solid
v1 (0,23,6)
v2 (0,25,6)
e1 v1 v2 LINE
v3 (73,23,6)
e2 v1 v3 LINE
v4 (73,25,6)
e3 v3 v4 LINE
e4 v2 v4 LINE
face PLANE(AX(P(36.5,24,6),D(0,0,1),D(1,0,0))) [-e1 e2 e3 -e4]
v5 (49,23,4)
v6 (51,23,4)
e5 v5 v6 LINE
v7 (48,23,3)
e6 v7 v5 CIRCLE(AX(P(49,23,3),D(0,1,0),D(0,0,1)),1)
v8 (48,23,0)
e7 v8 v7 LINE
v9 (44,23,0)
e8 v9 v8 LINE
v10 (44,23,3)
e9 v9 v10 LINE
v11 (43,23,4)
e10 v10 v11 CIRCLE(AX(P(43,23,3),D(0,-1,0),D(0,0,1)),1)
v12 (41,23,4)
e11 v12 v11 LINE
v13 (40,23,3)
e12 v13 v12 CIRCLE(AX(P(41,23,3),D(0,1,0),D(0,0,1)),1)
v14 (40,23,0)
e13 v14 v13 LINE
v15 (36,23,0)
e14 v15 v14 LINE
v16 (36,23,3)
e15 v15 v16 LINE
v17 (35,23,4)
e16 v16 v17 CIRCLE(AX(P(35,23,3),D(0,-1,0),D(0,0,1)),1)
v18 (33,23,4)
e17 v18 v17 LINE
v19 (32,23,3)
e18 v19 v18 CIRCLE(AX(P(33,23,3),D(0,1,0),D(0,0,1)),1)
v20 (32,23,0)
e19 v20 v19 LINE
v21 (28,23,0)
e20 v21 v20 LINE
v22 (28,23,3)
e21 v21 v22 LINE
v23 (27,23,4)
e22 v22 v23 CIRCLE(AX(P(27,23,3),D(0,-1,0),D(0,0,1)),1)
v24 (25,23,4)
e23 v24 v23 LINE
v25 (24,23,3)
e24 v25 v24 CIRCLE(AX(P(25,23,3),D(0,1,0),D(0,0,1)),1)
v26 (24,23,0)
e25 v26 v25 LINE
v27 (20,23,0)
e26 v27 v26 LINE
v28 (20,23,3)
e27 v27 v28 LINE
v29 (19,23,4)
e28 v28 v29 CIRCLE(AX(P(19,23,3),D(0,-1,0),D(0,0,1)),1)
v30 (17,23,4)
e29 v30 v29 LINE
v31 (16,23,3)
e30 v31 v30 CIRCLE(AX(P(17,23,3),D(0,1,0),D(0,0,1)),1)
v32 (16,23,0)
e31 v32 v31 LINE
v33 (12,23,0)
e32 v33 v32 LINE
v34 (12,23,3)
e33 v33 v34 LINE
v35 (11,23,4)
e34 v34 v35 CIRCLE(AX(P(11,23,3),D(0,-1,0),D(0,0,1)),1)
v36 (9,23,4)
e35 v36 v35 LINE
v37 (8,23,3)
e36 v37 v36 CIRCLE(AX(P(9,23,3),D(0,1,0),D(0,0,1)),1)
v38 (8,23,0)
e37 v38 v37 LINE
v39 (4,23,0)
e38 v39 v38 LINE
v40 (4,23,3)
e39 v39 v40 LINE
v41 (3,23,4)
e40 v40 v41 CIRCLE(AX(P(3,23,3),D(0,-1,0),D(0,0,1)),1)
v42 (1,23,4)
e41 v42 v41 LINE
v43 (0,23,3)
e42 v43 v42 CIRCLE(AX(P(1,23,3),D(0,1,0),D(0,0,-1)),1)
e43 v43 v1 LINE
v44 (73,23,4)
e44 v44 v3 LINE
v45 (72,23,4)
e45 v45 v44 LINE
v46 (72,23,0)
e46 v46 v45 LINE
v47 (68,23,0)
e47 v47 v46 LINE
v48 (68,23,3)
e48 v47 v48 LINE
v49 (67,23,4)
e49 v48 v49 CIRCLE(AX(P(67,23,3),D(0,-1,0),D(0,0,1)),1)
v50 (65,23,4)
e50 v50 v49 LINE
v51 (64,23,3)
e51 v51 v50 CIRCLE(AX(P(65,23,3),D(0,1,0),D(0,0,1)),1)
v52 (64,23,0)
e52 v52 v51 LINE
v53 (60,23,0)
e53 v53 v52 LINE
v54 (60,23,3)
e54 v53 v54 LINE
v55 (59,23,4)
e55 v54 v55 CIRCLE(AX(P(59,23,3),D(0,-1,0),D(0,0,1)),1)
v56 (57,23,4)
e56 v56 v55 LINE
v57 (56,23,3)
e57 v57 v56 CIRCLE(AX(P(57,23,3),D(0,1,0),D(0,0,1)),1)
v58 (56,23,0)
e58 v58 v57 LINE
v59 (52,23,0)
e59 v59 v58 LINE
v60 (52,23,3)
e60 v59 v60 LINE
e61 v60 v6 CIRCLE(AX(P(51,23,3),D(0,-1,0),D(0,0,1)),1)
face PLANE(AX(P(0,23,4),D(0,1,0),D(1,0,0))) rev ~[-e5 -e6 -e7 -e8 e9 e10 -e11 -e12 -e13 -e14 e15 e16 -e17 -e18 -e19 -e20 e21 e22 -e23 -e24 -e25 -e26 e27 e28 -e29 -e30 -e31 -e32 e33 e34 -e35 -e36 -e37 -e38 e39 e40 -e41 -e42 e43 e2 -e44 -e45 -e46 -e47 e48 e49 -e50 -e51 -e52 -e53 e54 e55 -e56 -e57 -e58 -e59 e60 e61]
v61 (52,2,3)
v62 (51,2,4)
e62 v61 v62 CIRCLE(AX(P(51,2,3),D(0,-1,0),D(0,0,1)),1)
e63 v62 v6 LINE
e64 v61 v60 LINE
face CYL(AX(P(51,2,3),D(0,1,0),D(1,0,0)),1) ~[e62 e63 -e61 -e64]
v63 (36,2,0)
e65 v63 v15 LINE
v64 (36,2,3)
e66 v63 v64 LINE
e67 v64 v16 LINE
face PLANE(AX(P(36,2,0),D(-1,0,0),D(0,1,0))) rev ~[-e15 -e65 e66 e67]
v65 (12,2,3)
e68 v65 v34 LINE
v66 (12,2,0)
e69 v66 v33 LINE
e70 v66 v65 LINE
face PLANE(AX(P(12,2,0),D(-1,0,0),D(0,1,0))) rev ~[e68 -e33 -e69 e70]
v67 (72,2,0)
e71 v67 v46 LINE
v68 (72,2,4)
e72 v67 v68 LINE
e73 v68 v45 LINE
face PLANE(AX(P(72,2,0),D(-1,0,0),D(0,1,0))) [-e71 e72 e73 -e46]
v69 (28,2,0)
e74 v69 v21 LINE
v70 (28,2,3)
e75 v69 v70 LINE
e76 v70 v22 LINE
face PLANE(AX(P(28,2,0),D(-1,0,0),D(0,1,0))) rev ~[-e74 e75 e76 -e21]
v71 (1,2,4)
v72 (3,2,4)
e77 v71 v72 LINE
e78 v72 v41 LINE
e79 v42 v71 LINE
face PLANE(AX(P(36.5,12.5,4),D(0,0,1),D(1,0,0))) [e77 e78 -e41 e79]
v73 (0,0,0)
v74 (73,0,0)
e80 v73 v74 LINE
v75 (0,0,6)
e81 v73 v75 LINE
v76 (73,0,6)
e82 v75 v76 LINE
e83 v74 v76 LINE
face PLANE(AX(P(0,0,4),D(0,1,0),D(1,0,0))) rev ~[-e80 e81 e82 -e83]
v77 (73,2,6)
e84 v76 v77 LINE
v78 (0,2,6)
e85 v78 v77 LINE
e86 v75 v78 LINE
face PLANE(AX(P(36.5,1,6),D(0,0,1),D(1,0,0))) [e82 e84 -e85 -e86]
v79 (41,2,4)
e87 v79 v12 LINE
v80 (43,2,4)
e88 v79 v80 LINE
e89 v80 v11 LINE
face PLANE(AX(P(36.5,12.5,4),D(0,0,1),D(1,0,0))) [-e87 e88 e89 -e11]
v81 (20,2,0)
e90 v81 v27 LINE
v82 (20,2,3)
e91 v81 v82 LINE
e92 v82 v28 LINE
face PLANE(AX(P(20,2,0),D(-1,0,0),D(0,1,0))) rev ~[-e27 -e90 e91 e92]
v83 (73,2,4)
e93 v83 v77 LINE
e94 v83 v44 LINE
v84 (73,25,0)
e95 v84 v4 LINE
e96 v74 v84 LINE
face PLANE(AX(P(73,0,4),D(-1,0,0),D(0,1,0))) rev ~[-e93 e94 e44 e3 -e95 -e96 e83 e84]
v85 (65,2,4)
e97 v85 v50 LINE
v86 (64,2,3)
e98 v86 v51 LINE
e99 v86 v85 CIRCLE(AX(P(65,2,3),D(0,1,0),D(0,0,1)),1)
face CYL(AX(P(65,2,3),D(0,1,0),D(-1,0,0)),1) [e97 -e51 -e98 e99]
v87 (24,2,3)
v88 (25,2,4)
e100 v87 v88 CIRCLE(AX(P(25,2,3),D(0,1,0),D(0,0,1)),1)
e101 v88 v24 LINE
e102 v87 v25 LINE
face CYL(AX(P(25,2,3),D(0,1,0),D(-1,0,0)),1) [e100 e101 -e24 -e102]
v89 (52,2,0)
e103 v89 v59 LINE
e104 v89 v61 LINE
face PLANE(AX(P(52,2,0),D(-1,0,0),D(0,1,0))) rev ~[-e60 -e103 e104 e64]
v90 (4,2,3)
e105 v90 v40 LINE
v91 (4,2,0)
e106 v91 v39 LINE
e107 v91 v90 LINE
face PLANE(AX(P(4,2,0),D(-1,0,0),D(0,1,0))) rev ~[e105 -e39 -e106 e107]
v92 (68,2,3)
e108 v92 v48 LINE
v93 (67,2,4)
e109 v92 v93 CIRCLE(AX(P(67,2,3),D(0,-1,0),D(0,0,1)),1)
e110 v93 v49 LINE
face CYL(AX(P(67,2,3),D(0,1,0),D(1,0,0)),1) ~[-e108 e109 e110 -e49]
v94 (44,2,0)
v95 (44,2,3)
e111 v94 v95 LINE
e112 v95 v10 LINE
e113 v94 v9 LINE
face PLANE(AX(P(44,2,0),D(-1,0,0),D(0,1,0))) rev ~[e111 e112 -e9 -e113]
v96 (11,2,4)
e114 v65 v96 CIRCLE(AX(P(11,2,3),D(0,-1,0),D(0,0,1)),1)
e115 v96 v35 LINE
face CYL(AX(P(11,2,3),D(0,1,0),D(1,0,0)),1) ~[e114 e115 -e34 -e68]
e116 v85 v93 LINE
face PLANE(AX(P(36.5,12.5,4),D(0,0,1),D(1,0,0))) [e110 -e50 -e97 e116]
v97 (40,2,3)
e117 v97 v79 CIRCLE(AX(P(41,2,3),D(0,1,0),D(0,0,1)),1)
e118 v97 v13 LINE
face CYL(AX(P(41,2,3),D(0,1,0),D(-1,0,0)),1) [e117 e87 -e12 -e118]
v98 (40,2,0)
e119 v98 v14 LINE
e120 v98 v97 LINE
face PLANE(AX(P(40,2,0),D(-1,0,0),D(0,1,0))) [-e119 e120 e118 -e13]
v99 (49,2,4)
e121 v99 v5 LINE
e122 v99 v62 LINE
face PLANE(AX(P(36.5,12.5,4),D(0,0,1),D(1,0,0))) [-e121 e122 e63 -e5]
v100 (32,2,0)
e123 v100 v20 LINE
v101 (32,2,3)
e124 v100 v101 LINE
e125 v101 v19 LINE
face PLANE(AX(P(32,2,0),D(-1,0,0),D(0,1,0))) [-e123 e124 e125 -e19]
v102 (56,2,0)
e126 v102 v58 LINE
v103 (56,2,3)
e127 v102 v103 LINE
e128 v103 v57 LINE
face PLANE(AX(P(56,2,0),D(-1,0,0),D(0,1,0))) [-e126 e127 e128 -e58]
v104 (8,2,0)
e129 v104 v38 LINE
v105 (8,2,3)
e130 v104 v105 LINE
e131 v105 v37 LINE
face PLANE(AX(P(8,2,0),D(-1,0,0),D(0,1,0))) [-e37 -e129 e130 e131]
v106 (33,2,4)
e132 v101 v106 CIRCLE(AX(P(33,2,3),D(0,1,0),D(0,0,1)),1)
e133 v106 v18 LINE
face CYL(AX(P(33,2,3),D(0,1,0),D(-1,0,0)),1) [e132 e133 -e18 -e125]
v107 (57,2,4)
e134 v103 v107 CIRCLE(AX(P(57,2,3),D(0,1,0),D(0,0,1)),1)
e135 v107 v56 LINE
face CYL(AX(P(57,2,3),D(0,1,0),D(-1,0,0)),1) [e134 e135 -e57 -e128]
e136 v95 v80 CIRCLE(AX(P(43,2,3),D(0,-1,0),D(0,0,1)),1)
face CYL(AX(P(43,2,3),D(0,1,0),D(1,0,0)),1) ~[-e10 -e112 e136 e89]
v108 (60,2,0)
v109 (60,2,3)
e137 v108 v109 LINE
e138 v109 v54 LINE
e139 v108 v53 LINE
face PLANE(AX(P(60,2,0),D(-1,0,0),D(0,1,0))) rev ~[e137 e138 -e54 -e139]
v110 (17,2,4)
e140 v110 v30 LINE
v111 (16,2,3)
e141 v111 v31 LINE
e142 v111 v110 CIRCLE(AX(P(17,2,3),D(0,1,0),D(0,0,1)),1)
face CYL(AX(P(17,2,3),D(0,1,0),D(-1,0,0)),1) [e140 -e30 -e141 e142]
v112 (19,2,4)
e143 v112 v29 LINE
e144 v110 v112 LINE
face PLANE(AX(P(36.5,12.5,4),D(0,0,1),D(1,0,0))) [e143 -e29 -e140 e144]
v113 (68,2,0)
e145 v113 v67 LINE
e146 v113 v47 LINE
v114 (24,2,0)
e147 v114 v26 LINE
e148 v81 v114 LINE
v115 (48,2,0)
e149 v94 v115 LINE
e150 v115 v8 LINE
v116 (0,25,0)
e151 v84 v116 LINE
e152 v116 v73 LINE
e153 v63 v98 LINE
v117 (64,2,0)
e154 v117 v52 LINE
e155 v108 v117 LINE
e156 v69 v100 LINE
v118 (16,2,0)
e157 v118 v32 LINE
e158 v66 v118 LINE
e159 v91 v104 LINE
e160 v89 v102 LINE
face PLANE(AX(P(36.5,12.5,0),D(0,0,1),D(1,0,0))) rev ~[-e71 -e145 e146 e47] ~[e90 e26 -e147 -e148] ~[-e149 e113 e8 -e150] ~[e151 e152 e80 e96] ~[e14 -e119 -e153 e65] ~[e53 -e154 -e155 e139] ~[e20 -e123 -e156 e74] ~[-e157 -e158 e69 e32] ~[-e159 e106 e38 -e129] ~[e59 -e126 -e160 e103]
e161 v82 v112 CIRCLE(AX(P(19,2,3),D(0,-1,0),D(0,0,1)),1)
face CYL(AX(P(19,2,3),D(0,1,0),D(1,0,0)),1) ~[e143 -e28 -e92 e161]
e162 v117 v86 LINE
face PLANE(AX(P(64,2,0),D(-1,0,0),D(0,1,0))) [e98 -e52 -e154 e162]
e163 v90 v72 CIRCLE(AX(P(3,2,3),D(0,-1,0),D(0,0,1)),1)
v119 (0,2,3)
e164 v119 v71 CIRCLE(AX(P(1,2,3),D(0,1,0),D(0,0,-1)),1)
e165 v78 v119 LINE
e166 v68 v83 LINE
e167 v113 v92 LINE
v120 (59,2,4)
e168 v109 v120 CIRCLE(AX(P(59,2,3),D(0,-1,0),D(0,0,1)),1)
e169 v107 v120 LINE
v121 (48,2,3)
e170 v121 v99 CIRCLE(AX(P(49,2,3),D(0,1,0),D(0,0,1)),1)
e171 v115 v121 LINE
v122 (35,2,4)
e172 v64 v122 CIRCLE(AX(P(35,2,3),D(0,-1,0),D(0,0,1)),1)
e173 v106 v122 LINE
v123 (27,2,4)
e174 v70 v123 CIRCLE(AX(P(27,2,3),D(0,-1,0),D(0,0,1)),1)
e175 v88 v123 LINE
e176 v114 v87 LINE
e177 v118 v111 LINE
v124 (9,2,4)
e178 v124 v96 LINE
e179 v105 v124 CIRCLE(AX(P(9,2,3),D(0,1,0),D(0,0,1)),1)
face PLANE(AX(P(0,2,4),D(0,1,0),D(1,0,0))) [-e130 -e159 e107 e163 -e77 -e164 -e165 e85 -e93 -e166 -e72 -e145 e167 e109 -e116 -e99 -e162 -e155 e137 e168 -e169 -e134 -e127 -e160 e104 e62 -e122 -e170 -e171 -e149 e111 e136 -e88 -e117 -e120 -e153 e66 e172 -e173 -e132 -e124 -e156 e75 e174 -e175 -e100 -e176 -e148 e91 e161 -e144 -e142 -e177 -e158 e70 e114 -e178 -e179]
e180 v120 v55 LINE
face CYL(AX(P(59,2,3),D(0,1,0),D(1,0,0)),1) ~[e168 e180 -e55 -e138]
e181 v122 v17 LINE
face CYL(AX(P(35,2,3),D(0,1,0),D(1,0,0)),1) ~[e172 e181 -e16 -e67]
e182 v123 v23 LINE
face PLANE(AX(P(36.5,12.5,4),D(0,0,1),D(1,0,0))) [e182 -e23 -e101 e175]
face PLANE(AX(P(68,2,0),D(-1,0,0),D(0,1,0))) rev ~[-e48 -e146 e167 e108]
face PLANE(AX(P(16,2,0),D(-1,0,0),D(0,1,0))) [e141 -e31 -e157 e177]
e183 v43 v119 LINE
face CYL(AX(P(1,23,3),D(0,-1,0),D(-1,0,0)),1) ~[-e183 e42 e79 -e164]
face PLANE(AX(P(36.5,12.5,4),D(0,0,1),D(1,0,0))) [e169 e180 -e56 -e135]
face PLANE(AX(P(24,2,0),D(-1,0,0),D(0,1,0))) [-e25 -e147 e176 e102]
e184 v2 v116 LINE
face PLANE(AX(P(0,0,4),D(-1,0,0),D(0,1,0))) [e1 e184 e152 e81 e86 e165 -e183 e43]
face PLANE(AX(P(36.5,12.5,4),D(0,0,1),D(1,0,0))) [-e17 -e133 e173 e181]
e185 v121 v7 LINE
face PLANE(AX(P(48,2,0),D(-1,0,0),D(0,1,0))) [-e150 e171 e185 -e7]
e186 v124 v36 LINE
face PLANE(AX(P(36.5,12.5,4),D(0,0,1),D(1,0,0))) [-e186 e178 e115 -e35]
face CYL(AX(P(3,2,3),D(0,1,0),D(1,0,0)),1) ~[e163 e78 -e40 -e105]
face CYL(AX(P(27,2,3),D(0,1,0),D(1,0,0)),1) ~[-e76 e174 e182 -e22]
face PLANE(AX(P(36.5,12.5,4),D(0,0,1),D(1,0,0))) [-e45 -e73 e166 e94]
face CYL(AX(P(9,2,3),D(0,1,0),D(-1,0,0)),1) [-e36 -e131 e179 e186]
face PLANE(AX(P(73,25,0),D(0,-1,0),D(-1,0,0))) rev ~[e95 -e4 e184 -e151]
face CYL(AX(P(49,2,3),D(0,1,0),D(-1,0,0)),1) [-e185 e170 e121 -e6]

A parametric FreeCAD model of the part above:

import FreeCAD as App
import Part
import Sketcher
from FreeCAD import Vector


def edges_at(feature, points):
    """Names of the edges that pass closest to the given points."""
    edges = feature.Shape.Edges
    near = lambda p: min(range(len(edges)), key=lambda i: edges[i].distToShape(Part.Vertex(*p))[0])
    return sorted({f"Edge{near(p) + 1}" for p in points})


def add_polygon(sketch, points):
    """Adds a closed chain of lines whose ends are joined by coincident constraints."""
    first, n = sketch.GeometryCount, len(points)
    for a, b in zip(points, points[1:] + points[:1]):
        sketch.addGeometry(Part.LineSegment(App.Vector(*a, 0), App.Vector(*b, 0)), False)
    for i in range(n):
        sketch.addConstraint(Sketcher.Constraint("Coincident", first + i, 2, first + (i + 1) % n, 1))

doc = App.newDocument("Part")
body = doc.addObject("PartDesign::Body", "Body")

sketch1 = doc.addObject("Sketcher::SketchObject", "Sketch")
body.addObject(sketch1)
sketch1.AttachmentSupport = (doc.XY_Plane, [""])
sketch1.MapMode = "FlatFace"
add_polygon(sketch1, [(0, 25), (0, 0), (73, 0), (73, 25)])
add_polygon(sketch1, [(8, 2), (4, 2), (4, 23), (8, 23)])
add_polygon(sketch1, [(16, 2), (12, 2), (12, 23), (16, 23)])
add_polygon(sketch1, [(24, 2), (20, 2), (20, 23), (24, 23)])
add_polygon(sketch1, [(32, 2), (28, 2), (28, 23), (32, 23)])
add_polygon(sketch1, [(40, 2), (36, 2), (36, 23), (40, 23)])
add_polygon(sketch1, [(48, 2), (44, 2), (44, 23), (48, 23)])
add_polygon(sketch1, [(56, 2), (52, 2), (52, 23), (56, 23)])
add_polygon(sketch1, [(64, 2), (60, 2), (60, 23), (64, 23)])
add_polygon(sketch1, [(72, 2), (68, 2), (68, 23), (72, 23)])
sketch1.addConstraint([
    Sketcher.Constraint("Vertical", 0),
    Sketcher.Constraint("Horizontal", 1),
    Sketcher.Constraint("Vertical", 2),
    Sketcher.Constraint("Horizontal", 3),
    Sketcher.Constraint("Horizontal", 4),
    Sketcher.Constraint("Vertical", 5),
    Sketcher.Constraint("Horizontal", 6),
    Sketcher.Constraint("Vertical", 7),
    Sketcher.Constraint("Horizontal", 8),
    Sketcher.Constraint("Vertical", 9),
    Sketcher.Constraint("Horizontal", 10),
    Sketcher.Constraint("Vertical", 11),
    Sketcher.Constraint("Horizontal", 12),
    Sketcher.Constraint("Vertical", 13),
    Sketcher.Constraint("Horizontal", 14),
    Sketcher.Constraint("Vertical", 15),
    Sketcher.Constraint("Horizontal", 16),
    Sketcher.Constraint("Vertical", 17),
    Sketcher.Constraint("Horizontal", 18),
    Sketcher.Constraint("Vertical", 19),
    Sketcher.Constraint("Horizontal", 20),
    Sketcher.Constraint("Vertical", 21),
    Sketcher.Constraint("Horizontal", 22),
    Sketcher.Constraint("Vertical", 23),
    Sketcher.Constraint("Horizontal", 24),
    Sketcher.Constraint("Vertical", 25),
    Sketcher.Constraint("Horizontal", 26),
    Sketcher.Constraint("Vertical", 27),
    Sketcher.Constraint("Horizontal", 28),
    Sketcher.Constraint("Vertical", 29),
    Sketcher.Constraint("Horizontal", 30),
    Sketcher.Constraint("Vertical", 31),
    Sketcher.Constraint("Horizontal", 32),
    Sketcher.Constraint("Vertical", 33),
    Sketcher.Constraint("Horizontal", 34),
    Sketcher.Constraint("Vertical", 35),
    Sketcher.Constraint("Horizontal", 36),
    Sketcher.Constraint("Vertical", 37),
    Sketcher.Constraint("Horizontal", 38),
    Sketcher.Constraint("Vertical", 39),
    Sketcher.Constraint("Coincident", 0, 2, -1, 1),
    Sketcher.Constraint("Horizontal", 7, 2, 8, 2),
    Sketcher.Constraint("Horizontal", 6, 2, 9, 2),
    Sketcher.Constraint("Horizontal", 11, 2, 12, 2),
    Sketcher.Constraint("Horizontal", 10, 2, 13, 2),
    Sketcher.Constraint("Horizontal", 15, 2, 16, 2),
    Sketcher.Constraint("Horizontal", 14, 2, 17, 2),
    Sketcher.Constraint("Horizontal", 19, 2, 20, 2),
    Sketcher.Constraint("Horizontal", 18, 2, 21, 2),
    Sketcher.Constraint("Horizontal", 23, 2, 24, 2),
    Sketcher.Constraint("Horizontal", 22, 2, 25, 2),
    Sketcher.Constraint("Horizontal", 27, 2, 28, 2),
    Sketcher.Constraint("Horizontal", 26, 2, 29, 2),
    Sketcher.Constraint("Horizontal", 31, 2, 32, 2),
    Sketcher.Constraint("Horizontal", 30, 2, 33, 2),
    Sketcher.Constraint("Horizontal", 35, 2, 36, 2),
    Sketcher.Constraint("Horizontal", 34, 2, 37, 2),
    Sketcher.Constraint("Equal", 6, 8),
    Sketcher.Constraint("Equal", 10, 12),
    Sketcher.Constraint("Equal", 14, 16),
    Sketcher.Constraint("Equal", 18, 20),
    Sketcher.Constraint("Equal", 22, 24),
    Sketcher.Constraint("Equal", 26, 28),
    Sketcher.Constraint("Equal", 30, 32),
    Sketcher.Constraint("Equal", 34, 36),
    Sketcher.Constraint("DistanceX", 1, 1, 1, 2, 73.0),
    Sketcher.Constraint("DistanceX", 4, 2, 4, 1, 4.0),
    Sketcher.Constraint("DistanceY", 0, 2, 0, 1, 25.0),
    Sketcher.Constraint("DistanceY", 5, 1, 5, 2, 21.0),
    Sketcher.Constraint("DistanceX", -1, 1, 4, 2, 4.0),
    Sketcher.Constraint("DistanceY", -1, 1, 4, 2, 2.0),
    Sketcher.Constraint("DistanceX", -1, 1, 8, 2, 12.0),
    Sketcher.Constraint("DistanceX", -1, 1, 12, 2, 20.0),
    Sketcher.Constraint("DistanceX", -1, 1, 16, 2, 28.0),
    Sketcher.Constraint("DistanceX", -1, 1, 20, 2, 36.0),
    Sketcher.Constraint("DistanceX", -1, 1, 24, 2, 44.0),
    Sketcher.Constraint("DistanceX", -1, 1, 28, 2, 52.0),
    Sketcher.Constraint("DistanceX", -1, 1, 32, 2, 60.0),
    Sketcher.Constraint("DistanceX", -1, 1, 36, 2, 68.0),
])
pad1 = doc.addObject("PartDesign::Pad", "Pad")
body.addObject(pad1)
pad1.Profile = sketch1
pad1.Length = 4
doc.recompute()

fillet = doc.addObject("PartDesign::Fillet", "Fillet")
body.addObject(fillet)
fillet.Base = (pad1, edges_at(pad1, [
    (8, 12.5, 4),
    (12, 12.5, 4),
    (16, 12.5, 4),
    (20, 12.5, 4),
    (24, 12.5, 4),
    (28, 12.5, 4),
    (32, 12.5, 4),
    (36, 12.5, 4),
    (40, 12.5, 4),
    (44, 12.5, 4),
    (48, 12.5, 4),
    (52, 12.5, 4),
    (56, 12.5, 4),
    (60, 12.5, 4),
    (64, 12.5, 4),
    (68, 12.5, 4),
]))
fillet.Radius = 1

sketch2 = doc.addObject("Sketcher::SketchObject", "Sketch001")
body.addObject(sketch2)
sketch2.AttachmentSupport = (doc.XY_Plane, [""])
sketch2.MapMode = "FlatFace"
sketch2.AttachmentOffset = App.Placement(Vector(0, 0, 4), App.Rotation())
add_polygon(sketch2, [(0, 2), (0, 0), (73, 0), (73, 2)])
add_polygon(sketch2, [(0, 25), (0, 23), (73, 23), (73, 25)])
sketch2.addConstraint([
    Sketcher.Constraint("Vertical", 0),
    Sketcher.Constraint("Horizontal", 1),
    Sketcher.Constraint("Vertical", 2),
    Sketcher.Constraint("Horizontal", 3),
    Sketcher.Constraint("Vertical", 4),
    Sketcher.Constraint("Horizontal", 5),
    Sketcher.Constraint("Vertical", 6),
    Sketcher.Constraint("Horizontal", 7),
    Sketcher.Constraint("Coincident", 0, 2, -1, 1),
    Sketcher.Constraint("PointOnObject", 4, 2, -2),
    Sketcher.Constraint("Vertical", 2, 2, 5, 2),
    Sketcher.Constraint("Equal", 2, 4),
    Sketcher.Constraint("DistanceX", 1, 1, 1, 2, 73.0),
    Sketcher.Constraint("DistanceY", 0, 2, 0, 1, 2.0),
    Sketcher.Constraint("DistanceY", -1, 1, 4, 2, 23.0),
])
pad2 = doc.addObject("PartDesign::Pad", "Pad001")
body.addObject(pad2)
pad2.Profile = sketch2
pad2.Length = 2
doc.recompute()

fillet2 = doc.addObject("PartDesign::Fillet", "Fillet001")
body.addObject(fillet2)
fillet2.Base = (pad2, edges_at(pad2, [(4, 12.5, 4), (0, 12.5, 4)]))
fillet2.Radius = 1

doc.recompute()
